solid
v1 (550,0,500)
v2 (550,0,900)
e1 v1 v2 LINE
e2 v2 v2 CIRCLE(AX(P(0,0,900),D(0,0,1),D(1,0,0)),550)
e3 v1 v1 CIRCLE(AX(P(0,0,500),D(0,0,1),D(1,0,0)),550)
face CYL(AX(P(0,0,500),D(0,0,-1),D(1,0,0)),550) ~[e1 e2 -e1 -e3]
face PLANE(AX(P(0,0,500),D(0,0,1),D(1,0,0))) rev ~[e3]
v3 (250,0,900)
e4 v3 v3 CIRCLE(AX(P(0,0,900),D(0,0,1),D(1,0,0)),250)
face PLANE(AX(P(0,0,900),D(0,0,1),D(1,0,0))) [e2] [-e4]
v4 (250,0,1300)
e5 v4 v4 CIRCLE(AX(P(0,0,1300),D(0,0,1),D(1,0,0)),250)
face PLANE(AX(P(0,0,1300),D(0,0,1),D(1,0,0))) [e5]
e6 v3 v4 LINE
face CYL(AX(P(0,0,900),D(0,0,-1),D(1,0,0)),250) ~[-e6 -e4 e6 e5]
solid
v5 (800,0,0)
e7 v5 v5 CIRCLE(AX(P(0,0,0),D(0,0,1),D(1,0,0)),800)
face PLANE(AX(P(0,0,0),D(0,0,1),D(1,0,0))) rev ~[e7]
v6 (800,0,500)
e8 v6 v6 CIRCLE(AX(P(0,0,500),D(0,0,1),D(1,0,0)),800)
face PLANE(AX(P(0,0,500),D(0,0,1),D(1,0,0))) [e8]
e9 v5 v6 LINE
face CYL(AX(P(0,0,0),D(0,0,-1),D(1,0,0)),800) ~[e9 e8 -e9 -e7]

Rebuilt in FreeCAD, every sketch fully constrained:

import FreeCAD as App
import Part
import Sketcher

V = App.Vector
Q = App.Units.Quantity

doc = App.newDocument("Part")
body = doc.addObject("PartDesign::Body", "Body")

# Sketch on XY plane
sketch1 = body.newObject("Sketcher::SketchObject", "Sketch")
sketch1.AttachmentSupport = (doc.getObject("XY_Plane"), [""])
sketch1.MapMode = "FlatFace"
sketch1.addGeometry(Part.Circle(V(0, 0, 0), V(0, 0, 1), 800), False)
sketch1.addConstraint(Sketcher.Constraint("Coincident", 0, 3, -1, 1))
sketch1.addConstraint(Sketcher.Constraint("Diameter", 0, Q("1600 mm")))
pad1 = body.newObject("PartDesign::Pad", "Pad")
pad1.Profile = sketch1
pad1.Length = 500
body2 = doc.addObject("PartDesign::Body", "Body001")

# Sketch on XY plane
sketch2 = body2.newObject("Sketcher::SketchObject", "Sketch001")
sketch2.AttachmentSupport = (doc.getObject("XY_Plane001"), [""])
sketch2.MapMode = "FlatFace"
sketch2.AttachmentOffset = App.Placement(V(0, 0, 500), App.Rotation())
sketch2.addGeometry(Part.Circle(V(0, 0, 0), V(0, 0, 1), 550), False)
sketch2.addConstraint(Sketcher.Constraint("Coincident", 0, 3, -1, 1))
sketch2.addConstraint(Sketcher.Constraint("Diameter", 0, Q("1100 mm")))
pad2 = body2.newObject("PartDesign::Pad", "Pad001")
pad2.Profile = sketch2
pad2.Length = 400

# Sketch on XY plane
sketch3 = body2.newObject("Sketcher::SketchObject", "Sketch002")
sketch3.AttachmentSupport = (doc.getObject("XY_Plane001"), [""])
sketch3.MapMode = "FlatFace"
sketch3.AttachmentOffset = App.Placement(V(0, 0, 900), App.Rotation())
sketch3.addGeometry(Part.Circle(V(0, 0, 0), V(0, 0, 1), 250), False)
sketch3.addConstraint(Sketcher.Constraint("Coincident", 0, 3, -1, 1))
sketch3.addConstraint(Sketcher.Constraint("Diameter", 0, Q("500 mm")))
pad3 = body2.newObject("PartDesign::Pad", "Pad002")
pad3.Profile = sketch3
pad3.Length = 400

doc.recompute()
